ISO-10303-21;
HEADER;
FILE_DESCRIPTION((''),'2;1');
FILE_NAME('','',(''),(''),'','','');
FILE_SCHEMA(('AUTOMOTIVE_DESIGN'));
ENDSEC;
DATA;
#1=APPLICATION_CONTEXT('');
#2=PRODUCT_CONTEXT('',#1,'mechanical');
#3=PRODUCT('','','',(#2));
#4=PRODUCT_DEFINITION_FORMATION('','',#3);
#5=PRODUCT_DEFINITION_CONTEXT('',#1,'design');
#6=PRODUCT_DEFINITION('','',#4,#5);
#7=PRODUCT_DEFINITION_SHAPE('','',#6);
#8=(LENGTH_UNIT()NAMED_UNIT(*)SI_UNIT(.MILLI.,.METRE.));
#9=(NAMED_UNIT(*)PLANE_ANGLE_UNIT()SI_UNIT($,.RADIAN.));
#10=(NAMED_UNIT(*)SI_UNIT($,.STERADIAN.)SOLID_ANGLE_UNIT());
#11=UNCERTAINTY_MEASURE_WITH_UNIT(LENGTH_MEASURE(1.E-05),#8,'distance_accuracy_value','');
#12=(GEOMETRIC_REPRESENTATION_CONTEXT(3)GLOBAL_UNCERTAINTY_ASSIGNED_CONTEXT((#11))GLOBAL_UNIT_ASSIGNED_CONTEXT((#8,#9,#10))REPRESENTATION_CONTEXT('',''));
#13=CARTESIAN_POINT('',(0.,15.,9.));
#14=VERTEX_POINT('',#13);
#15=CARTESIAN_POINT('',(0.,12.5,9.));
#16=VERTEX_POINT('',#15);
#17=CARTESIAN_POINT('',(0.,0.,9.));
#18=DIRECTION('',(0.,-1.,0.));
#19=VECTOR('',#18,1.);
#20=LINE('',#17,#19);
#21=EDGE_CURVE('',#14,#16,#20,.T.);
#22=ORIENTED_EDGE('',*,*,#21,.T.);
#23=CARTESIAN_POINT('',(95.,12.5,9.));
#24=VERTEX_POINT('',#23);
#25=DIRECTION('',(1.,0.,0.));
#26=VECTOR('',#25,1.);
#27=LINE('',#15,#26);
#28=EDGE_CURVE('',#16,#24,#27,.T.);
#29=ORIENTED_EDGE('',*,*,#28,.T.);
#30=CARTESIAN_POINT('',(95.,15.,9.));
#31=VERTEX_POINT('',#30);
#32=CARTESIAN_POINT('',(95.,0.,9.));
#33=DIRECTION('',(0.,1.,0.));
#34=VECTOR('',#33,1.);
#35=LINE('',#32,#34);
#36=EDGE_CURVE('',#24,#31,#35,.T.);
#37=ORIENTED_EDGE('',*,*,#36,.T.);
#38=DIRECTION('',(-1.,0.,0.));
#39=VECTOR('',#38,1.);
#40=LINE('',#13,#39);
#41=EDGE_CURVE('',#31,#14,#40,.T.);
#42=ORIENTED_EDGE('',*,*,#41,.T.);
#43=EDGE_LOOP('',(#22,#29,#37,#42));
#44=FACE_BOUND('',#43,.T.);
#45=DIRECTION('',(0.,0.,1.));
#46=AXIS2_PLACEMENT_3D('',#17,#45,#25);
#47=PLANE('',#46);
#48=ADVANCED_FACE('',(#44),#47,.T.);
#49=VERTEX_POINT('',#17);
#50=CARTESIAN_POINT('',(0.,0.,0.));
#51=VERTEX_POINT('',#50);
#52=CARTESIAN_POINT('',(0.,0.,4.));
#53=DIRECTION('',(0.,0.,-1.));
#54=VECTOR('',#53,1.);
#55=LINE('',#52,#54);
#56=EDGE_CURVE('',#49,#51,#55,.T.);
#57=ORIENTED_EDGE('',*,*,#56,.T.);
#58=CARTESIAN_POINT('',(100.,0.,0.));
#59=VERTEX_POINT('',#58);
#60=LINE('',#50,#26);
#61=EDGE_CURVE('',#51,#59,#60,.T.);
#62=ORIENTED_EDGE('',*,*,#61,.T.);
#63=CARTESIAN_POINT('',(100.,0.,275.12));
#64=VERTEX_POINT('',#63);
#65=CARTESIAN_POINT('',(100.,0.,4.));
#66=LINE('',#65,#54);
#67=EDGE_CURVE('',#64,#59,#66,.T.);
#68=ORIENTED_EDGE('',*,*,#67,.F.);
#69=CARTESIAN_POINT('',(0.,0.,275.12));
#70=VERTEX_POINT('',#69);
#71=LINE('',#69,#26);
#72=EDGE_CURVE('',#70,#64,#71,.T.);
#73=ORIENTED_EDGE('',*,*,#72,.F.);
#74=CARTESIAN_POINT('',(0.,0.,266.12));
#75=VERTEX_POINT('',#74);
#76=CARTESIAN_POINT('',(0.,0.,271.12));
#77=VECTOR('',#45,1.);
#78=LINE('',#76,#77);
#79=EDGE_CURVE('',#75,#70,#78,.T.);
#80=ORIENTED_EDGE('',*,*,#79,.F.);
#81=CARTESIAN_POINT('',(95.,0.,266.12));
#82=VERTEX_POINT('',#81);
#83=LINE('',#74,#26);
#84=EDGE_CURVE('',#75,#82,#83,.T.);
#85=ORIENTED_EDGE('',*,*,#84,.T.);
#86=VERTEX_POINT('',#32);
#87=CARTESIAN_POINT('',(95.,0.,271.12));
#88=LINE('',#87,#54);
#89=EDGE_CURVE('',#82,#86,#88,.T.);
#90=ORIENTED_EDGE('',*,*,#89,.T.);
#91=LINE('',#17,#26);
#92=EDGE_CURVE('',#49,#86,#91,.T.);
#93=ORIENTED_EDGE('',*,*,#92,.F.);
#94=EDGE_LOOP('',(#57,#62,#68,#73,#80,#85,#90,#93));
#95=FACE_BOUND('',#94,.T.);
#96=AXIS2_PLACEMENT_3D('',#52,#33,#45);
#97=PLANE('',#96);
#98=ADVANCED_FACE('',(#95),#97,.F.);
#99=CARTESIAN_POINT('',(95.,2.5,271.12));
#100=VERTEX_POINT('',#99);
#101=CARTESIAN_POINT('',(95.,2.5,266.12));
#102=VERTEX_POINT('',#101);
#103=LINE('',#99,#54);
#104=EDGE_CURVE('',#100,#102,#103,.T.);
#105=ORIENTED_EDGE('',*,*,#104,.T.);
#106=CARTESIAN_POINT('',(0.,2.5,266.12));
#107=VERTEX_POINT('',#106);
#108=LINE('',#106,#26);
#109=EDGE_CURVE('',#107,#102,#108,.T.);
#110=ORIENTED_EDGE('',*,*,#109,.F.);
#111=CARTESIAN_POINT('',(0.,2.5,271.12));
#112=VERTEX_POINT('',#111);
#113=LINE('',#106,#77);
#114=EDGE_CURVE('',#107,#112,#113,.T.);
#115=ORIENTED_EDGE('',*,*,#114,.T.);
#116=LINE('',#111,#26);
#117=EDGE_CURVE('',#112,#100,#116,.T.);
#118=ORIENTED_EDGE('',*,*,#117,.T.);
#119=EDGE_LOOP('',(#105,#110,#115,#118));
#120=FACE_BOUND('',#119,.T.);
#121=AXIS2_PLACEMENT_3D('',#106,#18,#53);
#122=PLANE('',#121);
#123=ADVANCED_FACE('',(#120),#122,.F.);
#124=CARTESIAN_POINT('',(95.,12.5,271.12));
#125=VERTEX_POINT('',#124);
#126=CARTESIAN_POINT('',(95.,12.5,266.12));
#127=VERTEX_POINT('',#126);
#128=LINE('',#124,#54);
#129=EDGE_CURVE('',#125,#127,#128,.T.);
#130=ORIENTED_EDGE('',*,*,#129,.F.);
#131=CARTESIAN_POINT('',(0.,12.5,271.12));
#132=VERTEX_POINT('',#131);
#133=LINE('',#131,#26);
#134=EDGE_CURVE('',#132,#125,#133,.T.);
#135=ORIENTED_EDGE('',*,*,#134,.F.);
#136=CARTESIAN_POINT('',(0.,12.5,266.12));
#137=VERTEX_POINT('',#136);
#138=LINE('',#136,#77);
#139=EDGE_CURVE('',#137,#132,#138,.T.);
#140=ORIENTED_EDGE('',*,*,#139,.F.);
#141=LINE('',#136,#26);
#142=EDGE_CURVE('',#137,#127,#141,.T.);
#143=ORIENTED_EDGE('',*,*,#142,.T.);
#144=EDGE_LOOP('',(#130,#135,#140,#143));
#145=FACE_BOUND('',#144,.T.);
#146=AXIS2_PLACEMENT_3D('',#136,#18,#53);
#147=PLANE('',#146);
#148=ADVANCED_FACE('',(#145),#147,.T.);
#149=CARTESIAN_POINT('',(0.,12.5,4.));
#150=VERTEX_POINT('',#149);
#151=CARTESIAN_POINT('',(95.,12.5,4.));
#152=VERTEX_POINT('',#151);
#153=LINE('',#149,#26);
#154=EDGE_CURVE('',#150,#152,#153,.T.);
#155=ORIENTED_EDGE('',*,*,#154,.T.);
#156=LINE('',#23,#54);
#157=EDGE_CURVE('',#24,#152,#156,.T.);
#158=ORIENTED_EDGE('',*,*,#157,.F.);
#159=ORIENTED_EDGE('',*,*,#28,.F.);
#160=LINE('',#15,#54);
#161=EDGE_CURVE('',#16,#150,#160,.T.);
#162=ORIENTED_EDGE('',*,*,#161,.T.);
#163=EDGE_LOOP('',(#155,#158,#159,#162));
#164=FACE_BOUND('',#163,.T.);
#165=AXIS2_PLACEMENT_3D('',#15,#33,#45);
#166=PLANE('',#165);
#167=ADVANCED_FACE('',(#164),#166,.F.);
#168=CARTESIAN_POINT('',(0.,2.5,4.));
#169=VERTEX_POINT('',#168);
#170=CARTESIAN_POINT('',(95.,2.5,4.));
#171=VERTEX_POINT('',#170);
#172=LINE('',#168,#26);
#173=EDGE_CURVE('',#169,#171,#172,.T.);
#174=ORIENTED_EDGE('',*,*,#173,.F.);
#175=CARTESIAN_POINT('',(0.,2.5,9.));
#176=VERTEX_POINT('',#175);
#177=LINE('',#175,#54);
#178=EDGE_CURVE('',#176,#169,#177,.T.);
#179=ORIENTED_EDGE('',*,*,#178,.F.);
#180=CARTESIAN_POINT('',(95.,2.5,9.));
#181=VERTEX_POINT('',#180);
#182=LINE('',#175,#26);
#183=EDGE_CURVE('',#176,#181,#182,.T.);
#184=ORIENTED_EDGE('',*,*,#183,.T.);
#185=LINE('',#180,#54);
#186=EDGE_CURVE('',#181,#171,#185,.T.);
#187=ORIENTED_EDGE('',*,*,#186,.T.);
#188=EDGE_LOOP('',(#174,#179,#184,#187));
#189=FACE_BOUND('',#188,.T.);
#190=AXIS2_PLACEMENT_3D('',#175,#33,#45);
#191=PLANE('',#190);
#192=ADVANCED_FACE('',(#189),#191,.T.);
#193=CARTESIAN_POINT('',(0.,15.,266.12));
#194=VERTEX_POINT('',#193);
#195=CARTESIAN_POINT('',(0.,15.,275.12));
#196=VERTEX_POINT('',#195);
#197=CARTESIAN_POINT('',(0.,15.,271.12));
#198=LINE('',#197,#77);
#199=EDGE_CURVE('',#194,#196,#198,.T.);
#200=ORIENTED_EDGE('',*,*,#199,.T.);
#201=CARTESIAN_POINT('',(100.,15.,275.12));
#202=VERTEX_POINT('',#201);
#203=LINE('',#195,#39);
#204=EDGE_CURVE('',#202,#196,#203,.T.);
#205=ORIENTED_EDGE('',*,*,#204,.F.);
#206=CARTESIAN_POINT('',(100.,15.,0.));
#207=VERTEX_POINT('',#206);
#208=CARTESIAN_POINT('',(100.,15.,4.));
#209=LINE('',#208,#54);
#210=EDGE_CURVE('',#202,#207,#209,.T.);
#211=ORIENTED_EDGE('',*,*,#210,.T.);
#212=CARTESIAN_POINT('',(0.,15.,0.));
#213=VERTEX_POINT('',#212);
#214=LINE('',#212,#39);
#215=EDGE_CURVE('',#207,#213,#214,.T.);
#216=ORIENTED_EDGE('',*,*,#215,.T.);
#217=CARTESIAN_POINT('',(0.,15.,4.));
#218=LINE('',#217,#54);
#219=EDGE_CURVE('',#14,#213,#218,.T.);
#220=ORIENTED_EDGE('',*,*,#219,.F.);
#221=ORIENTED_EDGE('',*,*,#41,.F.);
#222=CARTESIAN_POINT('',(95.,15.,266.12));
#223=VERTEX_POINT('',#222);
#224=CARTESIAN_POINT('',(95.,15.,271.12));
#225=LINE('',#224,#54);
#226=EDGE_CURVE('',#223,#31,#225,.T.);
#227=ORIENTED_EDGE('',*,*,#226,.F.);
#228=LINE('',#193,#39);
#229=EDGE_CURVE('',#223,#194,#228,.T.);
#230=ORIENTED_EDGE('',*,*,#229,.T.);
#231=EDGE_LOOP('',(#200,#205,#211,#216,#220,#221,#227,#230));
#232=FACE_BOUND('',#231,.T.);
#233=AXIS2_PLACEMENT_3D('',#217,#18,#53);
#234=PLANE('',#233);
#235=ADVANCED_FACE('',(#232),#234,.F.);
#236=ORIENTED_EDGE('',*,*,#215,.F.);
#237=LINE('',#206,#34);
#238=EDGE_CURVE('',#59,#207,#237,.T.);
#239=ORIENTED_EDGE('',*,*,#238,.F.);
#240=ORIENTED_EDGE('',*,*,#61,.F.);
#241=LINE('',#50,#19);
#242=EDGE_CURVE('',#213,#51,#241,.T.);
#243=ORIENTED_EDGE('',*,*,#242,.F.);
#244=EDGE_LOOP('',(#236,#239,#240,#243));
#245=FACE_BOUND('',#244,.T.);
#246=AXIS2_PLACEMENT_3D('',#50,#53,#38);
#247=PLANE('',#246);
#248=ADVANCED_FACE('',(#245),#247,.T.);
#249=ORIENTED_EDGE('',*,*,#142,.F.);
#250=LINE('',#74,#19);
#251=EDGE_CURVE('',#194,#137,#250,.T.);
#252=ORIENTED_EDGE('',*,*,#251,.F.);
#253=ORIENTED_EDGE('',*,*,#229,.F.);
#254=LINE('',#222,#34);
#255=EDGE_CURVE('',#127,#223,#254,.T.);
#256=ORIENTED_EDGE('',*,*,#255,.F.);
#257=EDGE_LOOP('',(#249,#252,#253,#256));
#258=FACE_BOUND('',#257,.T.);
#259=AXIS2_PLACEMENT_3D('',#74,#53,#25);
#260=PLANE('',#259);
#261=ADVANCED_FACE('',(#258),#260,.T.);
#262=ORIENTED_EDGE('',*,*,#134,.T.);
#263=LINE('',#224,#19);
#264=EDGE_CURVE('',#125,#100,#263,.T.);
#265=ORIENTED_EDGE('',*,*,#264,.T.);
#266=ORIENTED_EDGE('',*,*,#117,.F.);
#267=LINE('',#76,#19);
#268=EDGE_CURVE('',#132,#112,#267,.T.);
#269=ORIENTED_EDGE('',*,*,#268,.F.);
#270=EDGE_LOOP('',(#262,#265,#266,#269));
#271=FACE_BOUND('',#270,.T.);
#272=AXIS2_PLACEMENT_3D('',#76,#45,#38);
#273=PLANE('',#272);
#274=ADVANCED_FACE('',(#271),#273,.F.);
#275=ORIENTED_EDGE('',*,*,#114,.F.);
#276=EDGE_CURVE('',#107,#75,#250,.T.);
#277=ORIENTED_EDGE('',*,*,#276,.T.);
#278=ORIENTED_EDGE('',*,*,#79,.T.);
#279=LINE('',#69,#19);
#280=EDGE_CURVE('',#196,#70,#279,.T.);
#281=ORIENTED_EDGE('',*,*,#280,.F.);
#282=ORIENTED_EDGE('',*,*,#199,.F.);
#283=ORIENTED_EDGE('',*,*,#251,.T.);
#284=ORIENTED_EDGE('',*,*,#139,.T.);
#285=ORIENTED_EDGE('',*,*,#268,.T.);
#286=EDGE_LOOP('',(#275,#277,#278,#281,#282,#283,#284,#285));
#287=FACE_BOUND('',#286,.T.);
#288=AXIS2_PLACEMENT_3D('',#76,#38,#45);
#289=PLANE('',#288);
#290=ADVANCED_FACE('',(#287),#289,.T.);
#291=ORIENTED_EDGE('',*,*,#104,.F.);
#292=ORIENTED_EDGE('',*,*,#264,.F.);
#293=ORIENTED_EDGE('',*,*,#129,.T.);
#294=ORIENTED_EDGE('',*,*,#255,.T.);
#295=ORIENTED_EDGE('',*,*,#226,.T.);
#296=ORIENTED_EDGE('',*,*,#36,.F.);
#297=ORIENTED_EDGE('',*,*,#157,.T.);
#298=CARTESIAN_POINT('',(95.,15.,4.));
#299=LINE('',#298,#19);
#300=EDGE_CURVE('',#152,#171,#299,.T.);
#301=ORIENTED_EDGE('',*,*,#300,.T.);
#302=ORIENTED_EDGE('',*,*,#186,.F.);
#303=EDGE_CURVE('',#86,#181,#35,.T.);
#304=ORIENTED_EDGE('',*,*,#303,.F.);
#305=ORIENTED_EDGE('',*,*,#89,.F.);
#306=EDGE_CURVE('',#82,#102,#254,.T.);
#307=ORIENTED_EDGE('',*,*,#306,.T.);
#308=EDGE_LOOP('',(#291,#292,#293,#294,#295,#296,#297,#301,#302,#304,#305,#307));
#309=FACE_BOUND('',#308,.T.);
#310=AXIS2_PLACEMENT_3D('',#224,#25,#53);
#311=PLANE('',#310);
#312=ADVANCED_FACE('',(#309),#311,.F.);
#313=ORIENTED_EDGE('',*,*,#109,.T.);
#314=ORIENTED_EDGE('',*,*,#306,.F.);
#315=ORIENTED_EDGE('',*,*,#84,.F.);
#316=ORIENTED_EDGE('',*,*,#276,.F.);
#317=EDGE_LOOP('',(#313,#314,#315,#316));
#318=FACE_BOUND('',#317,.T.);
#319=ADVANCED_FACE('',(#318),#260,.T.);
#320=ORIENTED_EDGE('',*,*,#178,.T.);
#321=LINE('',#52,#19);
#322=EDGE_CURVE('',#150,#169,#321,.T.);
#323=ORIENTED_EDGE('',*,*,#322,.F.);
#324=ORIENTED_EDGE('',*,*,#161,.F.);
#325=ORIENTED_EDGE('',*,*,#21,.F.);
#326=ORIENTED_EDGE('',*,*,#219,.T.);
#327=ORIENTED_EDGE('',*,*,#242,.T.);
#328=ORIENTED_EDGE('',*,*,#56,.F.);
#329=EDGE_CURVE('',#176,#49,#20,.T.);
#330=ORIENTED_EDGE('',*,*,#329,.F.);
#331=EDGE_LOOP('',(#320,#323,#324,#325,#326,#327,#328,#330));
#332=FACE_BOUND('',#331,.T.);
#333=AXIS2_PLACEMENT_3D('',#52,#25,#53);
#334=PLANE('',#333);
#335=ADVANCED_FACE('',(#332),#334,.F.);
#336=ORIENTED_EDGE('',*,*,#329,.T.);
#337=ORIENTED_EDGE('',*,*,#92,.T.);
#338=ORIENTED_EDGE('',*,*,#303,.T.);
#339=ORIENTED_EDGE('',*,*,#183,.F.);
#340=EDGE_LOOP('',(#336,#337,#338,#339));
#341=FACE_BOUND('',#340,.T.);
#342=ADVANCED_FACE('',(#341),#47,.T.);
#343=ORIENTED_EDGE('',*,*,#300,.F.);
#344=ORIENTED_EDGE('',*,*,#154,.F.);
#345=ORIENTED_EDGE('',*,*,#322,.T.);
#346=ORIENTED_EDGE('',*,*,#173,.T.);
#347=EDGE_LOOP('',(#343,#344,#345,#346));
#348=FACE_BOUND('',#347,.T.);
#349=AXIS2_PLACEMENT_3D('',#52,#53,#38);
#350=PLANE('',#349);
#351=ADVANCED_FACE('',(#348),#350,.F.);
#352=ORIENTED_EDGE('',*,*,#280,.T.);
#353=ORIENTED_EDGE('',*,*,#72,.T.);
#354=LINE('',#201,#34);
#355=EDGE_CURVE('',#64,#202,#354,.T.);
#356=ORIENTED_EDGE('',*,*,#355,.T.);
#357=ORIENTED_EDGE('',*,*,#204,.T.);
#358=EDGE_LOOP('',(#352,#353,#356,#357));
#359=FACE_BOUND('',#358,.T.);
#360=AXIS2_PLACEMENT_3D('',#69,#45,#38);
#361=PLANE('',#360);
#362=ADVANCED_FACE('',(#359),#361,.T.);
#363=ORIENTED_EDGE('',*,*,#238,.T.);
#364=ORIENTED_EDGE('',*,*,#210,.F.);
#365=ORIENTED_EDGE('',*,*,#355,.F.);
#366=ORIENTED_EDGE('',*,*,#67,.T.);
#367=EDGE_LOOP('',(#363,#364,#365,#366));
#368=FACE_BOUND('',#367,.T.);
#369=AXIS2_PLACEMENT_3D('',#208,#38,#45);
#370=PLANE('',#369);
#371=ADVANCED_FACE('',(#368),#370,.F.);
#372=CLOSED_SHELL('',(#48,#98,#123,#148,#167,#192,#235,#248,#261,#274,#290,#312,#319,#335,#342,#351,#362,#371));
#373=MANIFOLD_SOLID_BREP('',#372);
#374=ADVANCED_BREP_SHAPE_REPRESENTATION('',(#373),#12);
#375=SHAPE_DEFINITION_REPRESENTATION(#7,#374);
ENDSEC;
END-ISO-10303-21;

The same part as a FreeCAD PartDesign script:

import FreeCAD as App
import Part
import Sketcher
from FreeCAD import Vector
Q = App.Units.Quantity


def add_polygon(sketch, points):
    """Adds a closed chain of lines whose ends are joined by coincident constraints."""
    first, n = sketch.GeometryCount, len(points)
    for a, b in zip(points, points[1:] + points[:1]):
        sketch.addGeometry(Part.LineSegment(App.Vector(*a, 0), App.Vector(*b, 0)), False)
    for i in range(n):
        sketch.addConstraint(Sketcher.Constraint("Coincident", first + i, 2, first + (i + 1) % n, 1))

doc = App.newDocument("Part")
body = doc.addObject("PartDesign::Body", "Body")

# Sketch on XY plane
sketch1 = body.newObject("Sketcher::SketchObject", "Sketch")
sketch1.AttachmentSupport = (doc.getObject("XY_Plane"), [""])
sketch1.MapMode = "FlatFace"
add_polygon(sketch1, [(0, 15), (0, 0), (100, 0), (100, 15)])  # lines 0-3
sketch1.addConstraint([
    Sketcher.Constraint("Vertical", 0),
    Sketcher.Constraint("Horizontal", 1),
    Sketcher.Constraint("Vertical", 2),
    Sketcher.Constraint("Horizontal", 3),
    Sketcher.Constraint("Coincident", 0, 2, -1, 1),
    Sketcher.Constraint("DistanceX", 1, 1, 1, 2, Q("100 mm")),
    Sketcher.Constraint("DistanceY", 0, 2, 0, 1, Q("15 mm")),
])
pad1 = body.newObject("PartDesign::Pad", "Pad")
pad1.Profile = sketch1
pad1.Length = 4

# Sketch on XY plane
sketch2 = body.newObject("Sketcher::SketchObject", "Sketch001")
sketch2.AttachmentSupport = (doc.getObject("XY_Plane"), [""])
sketch2.MapMode = "FlatFace"
sketch2.AttachmentOffset = App.Placement(Vector(0, 0, 4), App.Rotation())
add_polygon(sketch2, [(0, 15), (0, 12.5), (100, 12.5), (100, 15)])  # lines 0-3
add_polygon(sketch2, [(0, 2.5), (0, 0), (100, 0), (100, 2.5)])  # lines 4-7
sketch2.addConstraint([
    Sketcher.Constraint("Vertical", 0),
    Sketcher.Constraint("Horizontal", 1),
    Sketcher.Constraint("Vertical", 2),
    Sketcher.Constraint("Horizontal", 3),
    Sketcher.Constraint("Vertical", 4),
    Sketcher.Constraint("Horizontal", 5),
    Sketcher.Constraint("Vertical", 6),
    Sketcher.Constraint("Horizontal", 7),
    Sketcher.Constraint("Coincident", 4, 2, -1, 1),
    Sketcher.Constraint("PointOnObject", 0, 2, -2),
    Sketcher.Constraint("Vertical", 2, 2, 5, 2),
    Sketcher.Constraint("Equal", 2, 4),
    Sketcher.Constraint("DistanceX", 1, 1, 1, 2, Q("100 mm")),
    Sketcher.Constraint("DistanceY", 0, 2, 0, 1, Q("2.5 mm")),
    Sketcher.Constraint("DistanceY", -1, 1, 2, 2, Q("15 mm")),
])
pad2 = body.newObject("PartDesign::Pad", "Pad001")
pad2.Profile = sketch2
pad2.Length = 5

# Sketch on XY plane
sketch3 = body.newObject("Sketcher::SketchObject", "Sketch002")
sketch3.AttachmentSupport = (doc.getObject("XY_Plane"), [""])
sketch3.MapMode = "FlatFace"
sketch3.AttachmentOffset = App.Placement(Vector(0, 0, 4), App.Rotation())
add_polygon(sketch3, [(95, 15), (95, 0), (100, 0), (100, 15)])  # lines 0-3
sketch3.addConstraint([
    Sketcher.Constraint("Vertical", 0),
    Sketcher.Constraint("Horizontal", 1),
    Sketcher.Constraint("Vertical", 2),
    Sketcher.Constraint("Horizontal", 3),
    Sketcher.Constraint("PointOnObject", 0, 2, -1),
    Sketcher.Constraint("DistanceX", 1, 1, 1, 2, Q("5 mm")),
    Sketcher.Constraint("DistanceY", 0, 2, 0, 1, Q("15 mm")),
    Sketcher.Constraint("DistanceX", -1, 1, 0, 2, Q("95 mm")),
])
pad3 = body.newObject("PartDesign::Pad", "Pad002")
pad3.Profile = sketch3
pad3.Length = 267.12
doc.recompute()

datumplane = body.newObject("PartDesign::Plane", "DatumPlane")
datumplane.AttachmentSupport = (doc.getObject("XY_Plane"), [""])
datumplane.MapMode = "FlatFace"
datumplane.AttachmentOffset = App.Placement(Vector(0, 0, 137.56), App.Rotation())
mirrored = body.newObject("PartDesign::Mirrored", "Mirrored")
mirrored.Originals = [pad1, pad2]
mirrored.MirrorPlane = (datumplane, [""])
body.Tip = mirrored

doc.recompute()
